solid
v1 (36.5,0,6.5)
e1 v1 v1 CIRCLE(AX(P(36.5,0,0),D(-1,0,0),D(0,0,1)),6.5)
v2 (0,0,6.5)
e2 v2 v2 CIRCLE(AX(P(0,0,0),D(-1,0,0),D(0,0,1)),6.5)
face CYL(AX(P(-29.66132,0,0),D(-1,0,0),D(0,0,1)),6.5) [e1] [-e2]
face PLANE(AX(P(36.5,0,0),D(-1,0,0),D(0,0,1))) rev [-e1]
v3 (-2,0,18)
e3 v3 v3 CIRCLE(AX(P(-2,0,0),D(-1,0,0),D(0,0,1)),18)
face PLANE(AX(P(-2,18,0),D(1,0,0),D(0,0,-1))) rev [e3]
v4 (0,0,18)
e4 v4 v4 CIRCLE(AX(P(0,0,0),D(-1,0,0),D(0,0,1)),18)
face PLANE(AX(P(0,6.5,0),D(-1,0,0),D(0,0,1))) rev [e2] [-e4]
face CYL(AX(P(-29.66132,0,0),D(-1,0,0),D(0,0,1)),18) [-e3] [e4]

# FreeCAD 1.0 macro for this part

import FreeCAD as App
import Part
import Sketcher

V = App.Vector
Q = App.Units.Quantity


def add_polygon(sketch, points):
    """Adds a closed chain of lines whose ends are joined by coincident constraints."""
    first, n = sketch.GeometryCount, len(points)
    for a, b in zip(points, points[1:] + points[:1]):
        sketch.addGeometry(Part.LineSegment(App.Vector(*a, 0), App.Vector(*b, 0)), False)
    for i in range(n):
        sketch.addConstraint(Sketcher.Constraint("Coincident", first + i, 2, first + (i + 1) % n, 1))

doc = App.newDocument("Part")
params = doc.addObject("Spreadsheet::Sheet", "Params")
for row, (alias, value) in enumerate([
    ("sketch1_width", "2 mm"),
    ("sketch1_height", "18 mm"),
    ("sketch1_width2", "36.5 mm"),
    ("sketch1_height2", "11.5 mm"),
    ("revolution_angle", "360 deg"),
], start=1):
    params.set(f"A{row}", alias)
    params.set(f"B{row}", "=" + value)
    params.setAlias(f"B{row}", alias)

body = doc.addObject("PartDesign::Body", "Body")

# Sketch on XY plane
sketch1 = doc.addObject("Sketcher::SketchObject", "Sketch")
body.addObject(sketch1)
sketch1.AttachmentSupport = (doc.XY_Plane, [""])
sketch1.MapMode = "FlatFace"
add_polygon(sketch1, [(36.5, 6.5), (0, 6.5), (0, 18), (-2, 18), (-2, 0), (36.5, 0)])  # lines 0-5
sketch1.addConstraint([
    Sketcher.Constraint("Horizontal", 0),
    Sketcher.Constraint("Vertical", 1),
    Sketcher.Constraint("Horizontal", 2),
    Sketcher.Constraint("Vertical", 3),
    Sketcher.Constraint("Horizontal", 4),
    Sketcher.Constraint("Vertical", 5),
    Sketcher.Constraint("PointOnObject", 0, 2, -2),
    Sketcher.Constraint("PointOnObject", 3, 2, -1),
    Sketcher.Constraint("DistanceX", 2, 2, 2, 1, Q("2 mm")),
    Sketcher.Constraint("DistanceY", 3, 2, 3, 1, Q("18 mm")),
    Sketcher.Constraint("DistanceX", 0, 2, 0, 1, Q("36.5 mm")),
    Sketcher.Constraint("DistanceY", 1, 1, 1, 2, Q("11.5 mm")),
])
sketch1.setExpression("Constraints[14]", "Params.sketch1_width")
sketch1.setExpression("Constraints[15]", "Params.sketch1_height")
sketch1.setExpression("Constraints[16]", "Params.sketch1_width2")
sketch1.setExpression("Constraints[17]", "Params.sketch1_height2")
revolution = doc.addObject("PartDesign::Revolution", "Revolution")
body.addObject(revolution)
revolution.Profile = sketch1
revolution.ReferenceAxis = (sketch1, ["H_Axis"])
revolution.setExpression("Angle", "Params.revolution_angle")

doc.recompute()
